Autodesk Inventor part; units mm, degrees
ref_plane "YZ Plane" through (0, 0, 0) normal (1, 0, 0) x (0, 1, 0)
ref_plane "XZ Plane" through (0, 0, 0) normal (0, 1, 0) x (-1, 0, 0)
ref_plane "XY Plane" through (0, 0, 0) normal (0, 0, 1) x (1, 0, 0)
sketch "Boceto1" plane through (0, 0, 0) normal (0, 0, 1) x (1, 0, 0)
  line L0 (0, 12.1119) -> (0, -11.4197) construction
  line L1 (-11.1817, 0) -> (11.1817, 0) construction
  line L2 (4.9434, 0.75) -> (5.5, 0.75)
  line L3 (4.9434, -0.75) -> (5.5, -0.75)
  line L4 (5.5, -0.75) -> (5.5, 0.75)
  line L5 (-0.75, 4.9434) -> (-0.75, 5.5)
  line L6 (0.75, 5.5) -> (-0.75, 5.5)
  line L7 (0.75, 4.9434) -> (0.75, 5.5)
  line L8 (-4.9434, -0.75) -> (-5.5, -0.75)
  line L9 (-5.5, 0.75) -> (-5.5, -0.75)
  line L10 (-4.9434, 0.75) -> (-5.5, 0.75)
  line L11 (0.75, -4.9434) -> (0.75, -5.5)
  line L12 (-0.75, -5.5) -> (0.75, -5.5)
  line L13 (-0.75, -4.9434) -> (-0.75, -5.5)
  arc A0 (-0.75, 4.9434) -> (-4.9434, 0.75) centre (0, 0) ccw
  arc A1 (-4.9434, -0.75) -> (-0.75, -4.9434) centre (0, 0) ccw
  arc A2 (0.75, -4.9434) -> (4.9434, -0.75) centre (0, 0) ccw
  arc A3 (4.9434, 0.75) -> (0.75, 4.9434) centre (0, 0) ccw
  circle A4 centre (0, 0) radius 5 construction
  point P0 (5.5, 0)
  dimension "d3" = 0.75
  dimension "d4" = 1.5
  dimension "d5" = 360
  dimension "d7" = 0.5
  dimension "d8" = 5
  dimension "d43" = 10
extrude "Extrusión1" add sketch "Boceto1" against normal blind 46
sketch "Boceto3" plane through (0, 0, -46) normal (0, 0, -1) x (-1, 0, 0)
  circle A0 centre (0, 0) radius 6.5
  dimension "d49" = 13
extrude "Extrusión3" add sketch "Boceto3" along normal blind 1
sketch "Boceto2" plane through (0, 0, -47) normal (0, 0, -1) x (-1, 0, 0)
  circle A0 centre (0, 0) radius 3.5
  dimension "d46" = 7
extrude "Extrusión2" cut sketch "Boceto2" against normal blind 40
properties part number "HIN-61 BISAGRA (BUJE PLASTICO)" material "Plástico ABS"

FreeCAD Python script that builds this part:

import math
import FreeCAD as App
import Part
import Sketcher
from FreeCAD import Vector

doc = App.newDocument("Part")
body = doc.addObject("PartDesign::Body", "Body")

# Sketch on XY plane
sketch1 = body.newObject("Sketcher::SketchObject", "Sketch")
sketch1.AttachmentSupport = (doc.getObject("XY_Plane"), [""])
sketch1.MapMode = "FlatFace"
sketch1.addGeometry([
    Part.LineSegment(Vector(5.5, 0.75, 0), Vector(4.9434, 0.75, 0)),  # 0
    Part.ArcOfCircle(Part.Circle(Vector(0, 0, 0), Vector(0, 0, 1), 4.99997), math.radians(8.626978), math.radians(81.373022)),  # 1
    Part.LineSegment(Vector(0.75, 4.9434, 0), Vector(0.75, 5.5, 0)),  # 2
    Part.LineSegment(Vector(0.75, 5.5, 0), Vector(-0.75, 5.5, 0)),  # 3
    Part.LineSegment(Vector(-0.75, 5.5, 0), Vector(-0.75, 4.9434, 0)),  # 4
    Part.ArcOfCircle(Part.Circle(Vector(0, 0, 0), Vector(0, 0, 1), 4.99997), math.radians(98.626978), math.radians(171.373022)),  # 5
    Part.LineSegment(Vector(-4.9434, 0.75, 0), Vector(-5.5, 0.75, 0)),  # 6
    Part.LineSegment(Vector(-5.5, 0.75, 0), Vector(-5.5, -0.75, 0)),  # 7
    Part.LineSegment(Vector(-5.5, -0.75, 0), Vector(-4.9434, -0.75, 0)),  # 8
    Part.ArcOfCircle(Part.Circle(Vector(0, 0, 0), Vector(0, 0, 1), 4.99997), math.radians(-171.373022), math.radians(-98.626978)),  # 9
    Part.LineSegment(Vector(-0.75, -4.9434, 0), Vector(-0.75, -5.5, 0)),  # 10
    Part.LineSegment(Vector(-0.75, -5.5, 0), Vector(0.75, -5.5, 0)),  # 11
    Part.LineSegment(Vector(0.75, -5.5, 0), Vector(0.75, -4.9434, 0)),  # 12
    Part.ArcOfCircle(Part.Circle(Vector(0, 0, 0), Vector(0, 0, 1), 4.99997), math.radians(-81.373022), math.radians(-8.626978)),  # 13
    Part.LineSegment(Vector(4.9434, -0.75, 0), Vector(5.5, -0.75, 0)),  # 14
    Part.LineSegment(Vector(5.5, -0.75, 0), Vector(5.5, 0.75, 0)),  # 15
], False)
sketch1.addConstraint([
    Sketcher.Constraint("Coincident", 0, 2, 1, 1),
    Sketcher.Constraint("Coincident", 1, 2, 2, 1),
    Sketcher.Constraint("Coincident", 2, 2, 3, 1),
    Sketcher.Constraint("Coincident", 3, 2, 4, 1),
    Sketcher.Constraint("Coincident", 4, 2, 5, 1),
    Sketcher.Constraint("Coincident", 5, 2, 6, 1),
    Sketcher.Constraint("Coincident", 6, 2, 7, 1),
    Sketcher.Constraint("Coincident", 7, 2, 8, 1),
    Sketcher.Constraint("Coincident", 8, 2, 9, 1),
    Sketcher.Constraint("Coincident", 9, 2, 10, 1),
    Sketcher.Constraint("Coincident", 10, 2, 11, 1),
    Sketcher.Constraint("Coincident", 11, 2, 12, 1),
    Sketcher.Constraint("Coincident", 12, 2, 13, 1),
    Sketcher.Constraint("Coincident", 13, 2, 14, 1),
    Sketcher.Constraint("Coincident", 14, 2, 15, 1),
    Sketcher.Constraint("Coincident", 15, 2, 0, 1),
    Sketcher.Constraint("Horizontal", 0),
    Sketcher.Constraint("Vertical", 2),
    Sketcher.Constraint("Horizontal", 3),
    Sketcher.Constraint("Vertical", 4),
    Sketcher.Constraint("Horizontal", 6),
    Sketcher.Constraint("Vertical", 7),
    Sketcher.Constraint("Horizontal", 8),
    Sketcher.Constraint("Vertical", 10),
    Sketcher.Constraint("Horizontal", 11),
    Sketcher.Constraint("Vertical", 12),
    Sketcher.Constraint("Horizontal", 14),
    Sketcher.Constraint("Vertical", 15),
    Sketcher.Constraint("Coincident", 1, 3, -1, 1),
    Sketcher.Constraint("Coincident", 5, 3, -1, 1),
    Sketcher.Constraint("Coincident", 9, 3, -1, 1),
    Sketcher.Constraint("Coincident", 13, 3, -1, 1),
    Sketcher.Constraint("Equal", 1, 5),
    Sketcher.Constraint("Equal", 5, 9),
    Sketcher.Constraint("Equal", 9, 13),
    Sketcher.Constraint("Symmetric", 2, 2, 10, 2, -1, 1),
    Sketcher.Constraint("Symmetric", 6, 2, 14, 2, -1, 1),
    Sketcher.Constraint("Horizontal", 1, 2, 4, 2),
    Sketcher.Constraint("Horizontal", 0, 2, 5, 2),
    Sketcher.Constraint("Horizontal", 9, 2, 12, 2),
    Sketcher.Constraint("Horizontal", 8, 2, 13, 2),
    Sketcher.Constraint("Equal", 14, 2),
    Sketcher.Constraint("Equal", 11, 7),
    Sketcher.Constraint("Radius", 1, 5.0),
    Sketcher.Constraint("DistanceX", 3, 2, 3, 1, 1.5),
    Sketcher.Constraint("DistanceY", -1, 1, 2, 2, 5.5),
])
pad1 = body.newObject("PartDesign::Pad", "Pad")
pad1.Profile = sketch1
pad1.Length = 46
pad1.Reversed = True

# Sketch on XY plane
sketch2 = body.newObject("Sketcher::SketchObject", "Sketch001")
sketch2.AttachmentSupport = (doc.getObject("XY_Plane"), [""])
sketch2.MapMode = "FlatFace"
sketch2.AttachmentOffset = App.Placement(Vector(0, 0, -46), App.Rotation())
sketch2.addGeometry(Part.Circle(Vector(0, 0, 0), Vector(0, 0, 1), 6.5), False)
sketch2.addConstraint([
    Sketcher.Constraint("Coincident", 0, 3, -1, 1),
    Sketcher.Constraint("Diameter", 0, 13.0),
])
pad2 = body.newObject("PartDesign::Pad", "Pad001")
pad2.Profile = sketch2
pad2.Length = 1
pad2.Reversed = True

# Sketch on XY plane
sketch3 = body.newObject("Sketcher::SketchObject", "Sketch002")
sketch3.AttachmentSupport = (doc.getObject("XY_Plane"), [""])
sketch3.MapMode = "FlatFace"
sketch3.AttachmentOffset = App.Placement(Vector(0, 0, -47), App.Rotation())
sketch3.addGeometry(Part.Circle(Vector(0, 0, 0), Vector(0, 0, 1), 3.5), False)
sketch3.addConstraint([
    Sketcher.Constraint("Coincident", 0, 3, -1, 1),
    Sketcher.Constraint("Diameter", 0, 7.0),
])
pocket1 = body.newObject("PartDesign::Pocket", "Pocket")
pocket1.Profile = sketch3
pocket1.Length = 40
pocket1.Reversed = True

doc.recompute()
